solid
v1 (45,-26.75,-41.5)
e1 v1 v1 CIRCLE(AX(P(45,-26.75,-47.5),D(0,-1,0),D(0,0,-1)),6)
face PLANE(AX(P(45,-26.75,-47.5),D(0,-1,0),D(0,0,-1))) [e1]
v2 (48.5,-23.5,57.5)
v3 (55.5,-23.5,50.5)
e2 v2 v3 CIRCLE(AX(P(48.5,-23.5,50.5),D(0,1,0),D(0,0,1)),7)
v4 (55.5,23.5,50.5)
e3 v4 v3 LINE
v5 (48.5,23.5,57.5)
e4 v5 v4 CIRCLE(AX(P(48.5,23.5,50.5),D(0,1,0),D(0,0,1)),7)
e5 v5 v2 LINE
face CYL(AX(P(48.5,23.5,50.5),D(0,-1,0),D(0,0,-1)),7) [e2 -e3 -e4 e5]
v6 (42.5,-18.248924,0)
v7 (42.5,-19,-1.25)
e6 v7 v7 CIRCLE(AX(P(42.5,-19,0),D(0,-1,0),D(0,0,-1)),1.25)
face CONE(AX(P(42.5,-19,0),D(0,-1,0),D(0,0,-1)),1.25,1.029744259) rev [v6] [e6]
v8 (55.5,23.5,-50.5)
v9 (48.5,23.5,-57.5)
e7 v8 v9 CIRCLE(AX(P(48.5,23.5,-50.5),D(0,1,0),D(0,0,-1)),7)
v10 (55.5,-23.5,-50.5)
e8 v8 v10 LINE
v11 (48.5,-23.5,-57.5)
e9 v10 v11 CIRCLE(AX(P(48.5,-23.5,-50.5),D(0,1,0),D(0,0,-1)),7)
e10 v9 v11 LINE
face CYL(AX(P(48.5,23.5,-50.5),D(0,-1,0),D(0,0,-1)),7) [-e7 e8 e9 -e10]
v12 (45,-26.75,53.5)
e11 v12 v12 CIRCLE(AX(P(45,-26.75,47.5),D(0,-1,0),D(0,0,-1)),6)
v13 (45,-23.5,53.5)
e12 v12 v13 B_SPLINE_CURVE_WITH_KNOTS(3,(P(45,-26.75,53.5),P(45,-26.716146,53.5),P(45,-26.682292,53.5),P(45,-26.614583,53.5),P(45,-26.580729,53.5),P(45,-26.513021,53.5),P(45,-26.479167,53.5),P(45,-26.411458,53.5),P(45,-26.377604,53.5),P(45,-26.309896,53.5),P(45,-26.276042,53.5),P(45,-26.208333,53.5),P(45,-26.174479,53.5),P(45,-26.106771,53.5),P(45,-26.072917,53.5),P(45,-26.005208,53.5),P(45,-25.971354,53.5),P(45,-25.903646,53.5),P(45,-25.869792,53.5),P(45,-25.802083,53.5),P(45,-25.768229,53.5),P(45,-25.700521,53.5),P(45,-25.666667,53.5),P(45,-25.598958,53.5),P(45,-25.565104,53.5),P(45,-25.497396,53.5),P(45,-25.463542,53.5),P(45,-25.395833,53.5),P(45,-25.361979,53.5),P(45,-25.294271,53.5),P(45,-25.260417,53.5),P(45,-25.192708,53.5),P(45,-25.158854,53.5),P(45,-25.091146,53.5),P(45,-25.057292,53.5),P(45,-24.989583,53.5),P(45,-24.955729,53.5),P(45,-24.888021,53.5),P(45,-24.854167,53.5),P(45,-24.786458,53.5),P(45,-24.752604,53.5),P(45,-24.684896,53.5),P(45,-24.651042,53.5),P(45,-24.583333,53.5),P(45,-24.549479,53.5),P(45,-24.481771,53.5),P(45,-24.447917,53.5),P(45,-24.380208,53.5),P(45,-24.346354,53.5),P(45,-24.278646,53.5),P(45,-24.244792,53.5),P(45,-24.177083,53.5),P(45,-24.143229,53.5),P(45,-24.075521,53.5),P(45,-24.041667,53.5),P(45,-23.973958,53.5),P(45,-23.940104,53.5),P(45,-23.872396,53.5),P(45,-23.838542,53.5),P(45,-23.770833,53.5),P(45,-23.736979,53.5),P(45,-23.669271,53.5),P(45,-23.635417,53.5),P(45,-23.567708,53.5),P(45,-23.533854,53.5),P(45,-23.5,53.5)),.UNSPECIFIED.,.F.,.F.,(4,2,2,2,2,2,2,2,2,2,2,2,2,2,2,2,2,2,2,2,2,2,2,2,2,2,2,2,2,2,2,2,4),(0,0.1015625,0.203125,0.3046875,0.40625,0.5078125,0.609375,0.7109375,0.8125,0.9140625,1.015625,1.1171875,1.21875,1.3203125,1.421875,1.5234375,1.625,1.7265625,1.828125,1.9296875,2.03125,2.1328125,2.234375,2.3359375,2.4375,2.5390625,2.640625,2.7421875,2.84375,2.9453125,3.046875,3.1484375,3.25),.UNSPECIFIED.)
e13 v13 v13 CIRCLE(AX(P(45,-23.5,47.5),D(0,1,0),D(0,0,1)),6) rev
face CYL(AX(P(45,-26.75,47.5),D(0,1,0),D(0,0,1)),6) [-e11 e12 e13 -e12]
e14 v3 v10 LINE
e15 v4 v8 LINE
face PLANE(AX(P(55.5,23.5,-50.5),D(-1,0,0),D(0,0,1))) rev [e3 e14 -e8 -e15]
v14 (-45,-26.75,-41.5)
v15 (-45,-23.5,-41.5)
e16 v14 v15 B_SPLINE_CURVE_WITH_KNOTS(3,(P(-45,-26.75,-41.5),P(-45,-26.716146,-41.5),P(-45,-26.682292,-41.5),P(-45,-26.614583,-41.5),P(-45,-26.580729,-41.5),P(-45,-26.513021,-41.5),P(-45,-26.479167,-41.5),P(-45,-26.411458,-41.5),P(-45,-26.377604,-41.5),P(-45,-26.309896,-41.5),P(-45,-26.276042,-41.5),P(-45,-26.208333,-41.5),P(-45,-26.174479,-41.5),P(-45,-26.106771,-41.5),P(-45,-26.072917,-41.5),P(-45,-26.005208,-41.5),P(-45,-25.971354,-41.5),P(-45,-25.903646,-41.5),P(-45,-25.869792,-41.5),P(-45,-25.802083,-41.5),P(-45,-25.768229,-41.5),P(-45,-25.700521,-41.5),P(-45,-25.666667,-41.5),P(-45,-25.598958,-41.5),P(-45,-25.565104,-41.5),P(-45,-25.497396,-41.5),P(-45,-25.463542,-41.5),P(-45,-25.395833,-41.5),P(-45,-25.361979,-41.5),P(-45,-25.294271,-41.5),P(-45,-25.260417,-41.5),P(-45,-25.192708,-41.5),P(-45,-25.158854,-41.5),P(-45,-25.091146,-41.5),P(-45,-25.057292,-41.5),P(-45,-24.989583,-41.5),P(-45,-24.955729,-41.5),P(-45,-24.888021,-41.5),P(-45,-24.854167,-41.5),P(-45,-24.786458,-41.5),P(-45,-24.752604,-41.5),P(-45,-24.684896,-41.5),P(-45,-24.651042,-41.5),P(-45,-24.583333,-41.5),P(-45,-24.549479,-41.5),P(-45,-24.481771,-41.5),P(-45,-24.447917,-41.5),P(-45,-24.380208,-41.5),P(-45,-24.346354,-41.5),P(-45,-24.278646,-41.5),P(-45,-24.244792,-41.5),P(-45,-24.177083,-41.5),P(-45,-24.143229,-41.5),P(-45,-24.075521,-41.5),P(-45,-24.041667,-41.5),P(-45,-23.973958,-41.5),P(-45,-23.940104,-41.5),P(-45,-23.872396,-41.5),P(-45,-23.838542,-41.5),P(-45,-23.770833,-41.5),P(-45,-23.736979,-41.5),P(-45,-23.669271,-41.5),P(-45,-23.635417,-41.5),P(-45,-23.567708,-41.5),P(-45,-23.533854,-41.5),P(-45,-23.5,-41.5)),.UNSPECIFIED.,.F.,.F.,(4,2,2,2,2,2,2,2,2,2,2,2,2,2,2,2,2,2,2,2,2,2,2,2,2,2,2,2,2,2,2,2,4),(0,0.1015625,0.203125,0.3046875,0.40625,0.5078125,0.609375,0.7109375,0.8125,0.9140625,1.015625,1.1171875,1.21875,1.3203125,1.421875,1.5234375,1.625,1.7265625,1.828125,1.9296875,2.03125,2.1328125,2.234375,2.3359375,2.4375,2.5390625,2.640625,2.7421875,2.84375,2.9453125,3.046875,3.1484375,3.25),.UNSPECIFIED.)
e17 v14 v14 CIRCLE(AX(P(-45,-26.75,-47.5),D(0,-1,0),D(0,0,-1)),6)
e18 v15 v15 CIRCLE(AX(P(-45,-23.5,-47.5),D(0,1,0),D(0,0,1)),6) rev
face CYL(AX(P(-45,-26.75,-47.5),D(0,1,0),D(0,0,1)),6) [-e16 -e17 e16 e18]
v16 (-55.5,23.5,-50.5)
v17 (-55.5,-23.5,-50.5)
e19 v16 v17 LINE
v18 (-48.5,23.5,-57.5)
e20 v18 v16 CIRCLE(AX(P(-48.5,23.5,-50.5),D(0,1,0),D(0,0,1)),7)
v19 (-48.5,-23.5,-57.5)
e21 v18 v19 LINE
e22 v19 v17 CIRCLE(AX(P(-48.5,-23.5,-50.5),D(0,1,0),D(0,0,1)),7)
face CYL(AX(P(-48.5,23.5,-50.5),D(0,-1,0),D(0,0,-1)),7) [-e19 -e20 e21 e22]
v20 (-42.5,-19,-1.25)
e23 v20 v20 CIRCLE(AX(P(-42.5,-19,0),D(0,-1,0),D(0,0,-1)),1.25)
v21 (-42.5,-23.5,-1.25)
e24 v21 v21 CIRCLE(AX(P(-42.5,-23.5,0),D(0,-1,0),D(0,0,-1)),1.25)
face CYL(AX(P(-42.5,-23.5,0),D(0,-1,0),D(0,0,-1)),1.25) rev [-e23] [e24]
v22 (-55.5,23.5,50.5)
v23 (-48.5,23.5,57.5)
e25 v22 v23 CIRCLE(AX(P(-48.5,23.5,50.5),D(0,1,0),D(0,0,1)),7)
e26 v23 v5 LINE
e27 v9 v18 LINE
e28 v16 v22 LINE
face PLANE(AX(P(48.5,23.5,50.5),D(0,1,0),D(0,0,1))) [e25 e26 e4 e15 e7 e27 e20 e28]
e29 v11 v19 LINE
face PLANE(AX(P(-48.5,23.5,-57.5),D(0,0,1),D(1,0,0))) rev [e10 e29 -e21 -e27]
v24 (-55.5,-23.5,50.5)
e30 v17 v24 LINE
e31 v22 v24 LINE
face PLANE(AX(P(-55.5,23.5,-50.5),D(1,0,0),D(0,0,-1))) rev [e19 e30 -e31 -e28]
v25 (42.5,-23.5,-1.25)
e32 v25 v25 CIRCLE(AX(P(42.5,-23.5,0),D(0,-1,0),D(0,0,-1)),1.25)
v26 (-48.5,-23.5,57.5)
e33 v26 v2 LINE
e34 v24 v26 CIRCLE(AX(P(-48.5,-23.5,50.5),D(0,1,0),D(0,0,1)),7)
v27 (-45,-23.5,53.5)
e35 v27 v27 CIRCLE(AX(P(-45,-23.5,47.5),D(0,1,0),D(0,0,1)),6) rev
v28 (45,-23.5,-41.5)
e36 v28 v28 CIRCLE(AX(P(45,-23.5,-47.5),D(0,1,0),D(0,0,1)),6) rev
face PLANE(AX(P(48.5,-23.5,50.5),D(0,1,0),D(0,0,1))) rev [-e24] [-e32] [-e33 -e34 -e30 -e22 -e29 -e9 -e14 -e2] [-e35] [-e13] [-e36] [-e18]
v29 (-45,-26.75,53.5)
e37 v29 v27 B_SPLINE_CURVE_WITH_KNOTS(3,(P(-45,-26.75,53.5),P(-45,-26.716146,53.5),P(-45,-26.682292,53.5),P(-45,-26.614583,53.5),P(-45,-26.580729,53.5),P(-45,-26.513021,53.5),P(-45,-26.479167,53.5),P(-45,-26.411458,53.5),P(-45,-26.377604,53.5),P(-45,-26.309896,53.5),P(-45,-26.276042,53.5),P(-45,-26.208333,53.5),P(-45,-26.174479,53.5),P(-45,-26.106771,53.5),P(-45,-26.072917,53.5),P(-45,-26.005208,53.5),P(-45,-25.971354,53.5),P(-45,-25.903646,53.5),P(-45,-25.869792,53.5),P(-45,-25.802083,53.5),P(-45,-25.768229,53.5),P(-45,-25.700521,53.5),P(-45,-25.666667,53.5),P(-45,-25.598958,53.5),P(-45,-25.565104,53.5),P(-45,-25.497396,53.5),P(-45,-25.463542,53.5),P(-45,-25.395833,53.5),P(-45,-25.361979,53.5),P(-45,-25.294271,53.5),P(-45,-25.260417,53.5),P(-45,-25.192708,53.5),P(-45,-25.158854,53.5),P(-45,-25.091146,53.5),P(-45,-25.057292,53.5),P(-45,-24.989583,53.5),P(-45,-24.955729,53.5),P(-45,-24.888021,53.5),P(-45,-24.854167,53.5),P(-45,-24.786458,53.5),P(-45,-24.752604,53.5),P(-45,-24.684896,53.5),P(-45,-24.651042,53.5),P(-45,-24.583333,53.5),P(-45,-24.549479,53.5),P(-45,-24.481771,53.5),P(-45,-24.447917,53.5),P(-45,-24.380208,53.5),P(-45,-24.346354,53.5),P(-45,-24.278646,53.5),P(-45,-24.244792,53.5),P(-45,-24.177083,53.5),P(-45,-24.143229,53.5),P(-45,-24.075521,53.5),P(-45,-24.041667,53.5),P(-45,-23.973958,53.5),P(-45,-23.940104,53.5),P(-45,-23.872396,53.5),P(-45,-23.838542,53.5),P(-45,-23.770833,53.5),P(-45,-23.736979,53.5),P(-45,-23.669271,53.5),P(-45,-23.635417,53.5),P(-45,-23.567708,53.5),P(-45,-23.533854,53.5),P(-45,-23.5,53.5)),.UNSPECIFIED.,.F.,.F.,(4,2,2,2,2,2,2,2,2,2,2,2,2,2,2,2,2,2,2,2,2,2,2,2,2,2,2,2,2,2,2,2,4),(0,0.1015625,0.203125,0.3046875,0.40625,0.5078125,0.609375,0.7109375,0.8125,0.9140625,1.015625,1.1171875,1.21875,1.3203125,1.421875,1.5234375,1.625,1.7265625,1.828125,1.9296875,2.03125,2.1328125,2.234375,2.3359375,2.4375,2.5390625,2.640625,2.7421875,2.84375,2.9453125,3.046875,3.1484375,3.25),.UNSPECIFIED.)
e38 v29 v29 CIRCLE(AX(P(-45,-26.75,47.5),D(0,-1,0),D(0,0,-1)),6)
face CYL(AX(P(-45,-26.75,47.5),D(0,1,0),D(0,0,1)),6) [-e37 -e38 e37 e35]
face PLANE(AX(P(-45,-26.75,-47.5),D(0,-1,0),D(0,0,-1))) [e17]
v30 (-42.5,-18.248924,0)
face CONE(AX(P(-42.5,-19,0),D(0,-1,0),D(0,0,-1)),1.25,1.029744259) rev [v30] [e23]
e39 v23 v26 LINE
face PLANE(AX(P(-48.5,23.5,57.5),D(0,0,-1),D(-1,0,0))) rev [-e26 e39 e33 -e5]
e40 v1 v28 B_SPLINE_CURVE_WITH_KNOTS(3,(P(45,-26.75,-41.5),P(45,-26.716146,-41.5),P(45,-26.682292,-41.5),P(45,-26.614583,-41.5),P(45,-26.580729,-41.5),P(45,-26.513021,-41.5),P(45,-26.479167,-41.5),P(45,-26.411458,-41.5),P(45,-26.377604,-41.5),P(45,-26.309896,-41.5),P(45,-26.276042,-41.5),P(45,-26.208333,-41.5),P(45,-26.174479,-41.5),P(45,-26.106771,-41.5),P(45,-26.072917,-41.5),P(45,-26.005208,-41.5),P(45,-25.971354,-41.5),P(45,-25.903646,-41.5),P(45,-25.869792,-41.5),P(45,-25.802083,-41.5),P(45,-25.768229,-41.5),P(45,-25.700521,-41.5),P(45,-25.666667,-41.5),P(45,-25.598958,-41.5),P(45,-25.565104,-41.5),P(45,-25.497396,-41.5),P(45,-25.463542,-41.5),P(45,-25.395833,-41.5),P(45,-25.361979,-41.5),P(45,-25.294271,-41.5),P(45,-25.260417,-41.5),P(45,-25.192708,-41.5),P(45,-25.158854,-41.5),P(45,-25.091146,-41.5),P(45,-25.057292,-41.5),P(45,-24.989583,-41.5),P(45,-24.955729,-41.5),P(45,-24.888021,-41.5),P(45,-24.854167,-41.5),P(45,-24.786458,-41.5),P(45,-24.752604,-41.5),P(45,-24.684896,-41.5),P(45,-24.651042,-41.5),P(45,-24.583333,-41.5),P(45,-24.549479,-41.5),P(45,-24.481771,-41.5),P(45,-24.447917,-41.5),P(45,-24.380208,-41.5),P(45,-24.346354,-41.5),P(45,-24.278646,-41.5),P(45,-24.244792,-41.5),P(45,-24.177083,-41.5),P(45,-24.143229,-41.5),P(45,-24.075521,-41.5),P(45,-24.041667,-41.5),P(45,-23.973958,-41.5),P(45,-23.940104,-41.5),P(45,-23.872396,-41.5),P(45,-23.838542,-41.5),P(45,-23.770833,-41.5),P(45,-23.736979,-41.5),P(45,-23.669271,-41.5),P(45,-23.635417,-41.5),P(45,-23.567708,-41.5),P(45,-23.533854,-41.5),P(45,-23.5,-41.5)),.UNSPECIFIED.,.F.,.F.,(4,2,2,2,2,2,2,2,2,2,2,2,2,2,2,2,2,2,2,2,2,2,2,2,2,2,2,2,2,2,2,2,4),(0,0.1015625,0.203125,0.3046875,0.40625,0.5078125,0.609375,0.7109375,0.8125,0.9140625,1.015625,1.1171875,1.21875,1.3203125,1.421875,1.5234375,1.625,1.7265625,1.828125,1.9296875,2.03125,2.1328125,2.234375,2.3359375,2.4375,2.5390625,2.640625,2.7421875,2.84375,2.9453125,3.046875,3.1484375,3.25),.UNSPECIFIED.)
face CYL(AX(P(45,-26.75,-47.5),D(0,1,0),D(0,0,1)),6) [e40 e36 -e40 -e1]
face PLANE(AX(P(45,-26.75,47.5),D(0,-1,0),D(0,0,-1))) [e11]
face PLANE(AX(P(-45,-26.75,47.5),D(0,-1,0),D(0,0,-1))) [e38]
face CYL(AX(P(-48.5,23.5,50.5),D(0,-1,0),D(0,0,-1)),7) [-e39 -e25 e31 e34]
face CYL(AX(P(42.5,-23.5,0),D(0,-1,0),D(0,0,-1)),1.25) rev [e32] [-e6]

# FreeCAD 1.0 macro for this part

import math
import FreeCAD as App
import Part
import Sketcher
Q = App.Units.Quantity

doc = App.newDocument("Part")
body = doc.addObject("PartDesign::Body", "Body")

# Sketch on XZ plane
sketch1 = body.newObject("Sketcher::SketchObject", "Sketch")
sketch1.AttachmentSupport = (doc.getObject("XZ_Plane"), [""])
sketch1.MapMode = "FlatFace"
sketch1.addGeometry([
    Part.LineSegment(App.Vector(48.5, -57.5, 0), App.Vector(-48.5, -57.5, 0)),  # 0
    Part.ArcOfCircle(Part.Circle(App.Vector(-48.5, -50.5, 0), App.Vector(0, 0, 1), 7), math.radians(-180), math.radians(-90)),  # 1
    Part.LineSegment(App.Vector(-55.5, -50.5, 0), App.Vector(-55.5, 50.5, 0)),  # 2
    Part.ArcOfCircle(Part.Circle(App.Vector(-48.5, 50.5, 0), App.Vector(0, 0, 1), 7), math.radians(90), math.radians(180)),  # 3
    Part.LineSegment(App.Vector(-48.5, 57.5, 0), App.Vector(48.5, 57.5, 0)),  # 4
    Part.ArcOfCircle(Part.Circle(App.Vector(48.5, 50.5, 0), App.Vector(0, 0, 1), 7), math.radians(0), math.radians(90)),  # 5
    Part.LineSegment(App.Vector(55.5, 50.5, 0), App.Vector(55.5, -50.5, 0)),  # 6
    Part.ArcOfCircle(Part.Circle(App.Vector(48.5, -50.5, 0), App.Vector(0, 0, 1), 7), math.radians(-90), math.radians(0)),  # 7
], False)
sketch1.addConstraint([
    Sketcher.Constraint("Tangent", 0, 2, 1, 2),
    Sketcher.Constraint("Tangent", 1, 1, 2, 1),
    Sketcher.Constraint("Tangent", 2, 2, 3, 2),
    Sketcher.Constraint("Tangent", 3, 1, 4, 1),
    Sketcher.Constraint("Tangent", 4, 2, 5, 2),
    Sketcher.Constraint("Tangent", 5, 1, 6, 1),
    Sketcher.Constraint("Tangent", 6, 2, 7, 2),
    Sketcher.Constraint("Tangent", 7, 1, 0, 1),
    Sketcher.Constraint("Horizontal", 0),
    Sketcher.Constraint("Vertical", 2),
    Sketcher.Constraint("Horizontal", 4),
    Sketcher.Constraint("Vertical", 6),
    Sketcher.Constraint("Equal", 1, 3),
    Sketcher.Constraint("Equal", 3, 5),
    Sketcher.Constraint("Equal", 5, 7),
    Sketcher.Constraint("Symmetric", 1, 3, 5, 3, -1, 1),
    Sketcher.Constraint("Radius", 1, Q("7 mm")),
    Sketcher.Constraint("DistanceX", 0, 2, 0, 1, Q("97 mm")),
    Sketcher.Constraint("DistanceY", 2, 1, 2, 2, Q("101 mm")),
])
pad1 = body.newObject("PartDesign::Pad", "Pad")
pad1.Profile = sketch1
pad1.Length = 47
pad1.Midplane = True

# Sketch on XZ plane
sketch2 = body.newObject("Sketcher::SketchObject", "Sketch001")
sketch2.AttachmentSupport = (doc.getObject("XZ_Plane"), [""])
sketch2.MapMode = "FlatFace"
sketch2.AttachmentOffset = App.Placement(App.Vector(0, 0, 23.5), App.Rotation())
sketch2.addGeometry([
    Part.Circle(App.Vector(45, 47.5, 0), App.Vector(0, 0, 1), 6),
    Part.Circle(App.Vector(-45, 47.5, 0), App.Vector(0, 0, 1), 6),
    Part.Circle(App.Vector(-45, -47.5, 0), App.Vector(0, 0, 1), 6),
    Part.Circle(App.Vector(45, -47.5, 0), App.Vector(0, 0, 1), 6),
], False)
sketch2.addConstraint([
    Sketcher.Constraint("Equal", 0, 1),
    Sketcher.Constraint("Equal", 1, 2),
    Sketcher.Constraint("Equal", 2, 3),
    Sketcher.Constraint("Symmetric", 0, 3, 2, 3, -1, 1),
    Sketcher.Constraint("Symmetric", 1, 3, 3, 3, -1, 1),
    Sketcher.Constraint("Symmetric", 0, 3, 1, 3, -2),
    Sketcher.Constraint("Diameter", 0, Q("12 mm")),
    Sketcher.Constraint("DistanceX", -1, 1, 0, 3, Q("45 mm")),
    Sketcher.Constraint("DistanceY", 2, 3, 1, 3, Q("95 mm")),
])
pad2 = body.newObject("PartDesign::Pad", "Pad001")
pad2.Profile = sketch2
pad2.Length = 3.25

# Sketch on XZ plane
sketch3 = body.newObject("Sketcher::SketchObject", "Sketch002")
sketch3.AttachmentSupport = (doc.getObject("XZ_Plane"), [""])
sketch3.MapMode = "FlatFace"
sketch3.AttachmentOffset = App.Placement(App.Vector(0, 0, 23.5), App.Rotation())
sketch3.addGeometry([
    Part.Circle(App.Vector(42.5, 0, 0), App.Vector(0, 0, 1), 1.25),
    Part.Circle(App.Vector(-42.5, 0, 0), App.Vector(0, 0, 1), 1.25),
], False)
sketch3.addConstraint([
    Sketcher.Constraint("Equal", 0, 1),
    Sketcher.Constraint("Symmetric", 0, 3, 1, 3, -1, 1),
    Sketcher.Constraint("PointOnObject", 0, 3, -1),
    Sketcher.Constraint("Diameter", 0, Q("2.5 mm")),
    Sketcher.Constraint("DistanceX", 1, 3, 0, 3, Q("85 mm")),
])
doc.recompute()
hole = body.newObject("PartDesign::Hole", "Hole")
hole.Profile = sketch3
hole.ThreadType = "None"
hole.Diameter = 2.5
hole.DepthType = "Dimension"
hole.Depth = 4.5
hole.DrillPoint = "Angled"
hole.DrillPointAngle = 118

doc.recompute()
